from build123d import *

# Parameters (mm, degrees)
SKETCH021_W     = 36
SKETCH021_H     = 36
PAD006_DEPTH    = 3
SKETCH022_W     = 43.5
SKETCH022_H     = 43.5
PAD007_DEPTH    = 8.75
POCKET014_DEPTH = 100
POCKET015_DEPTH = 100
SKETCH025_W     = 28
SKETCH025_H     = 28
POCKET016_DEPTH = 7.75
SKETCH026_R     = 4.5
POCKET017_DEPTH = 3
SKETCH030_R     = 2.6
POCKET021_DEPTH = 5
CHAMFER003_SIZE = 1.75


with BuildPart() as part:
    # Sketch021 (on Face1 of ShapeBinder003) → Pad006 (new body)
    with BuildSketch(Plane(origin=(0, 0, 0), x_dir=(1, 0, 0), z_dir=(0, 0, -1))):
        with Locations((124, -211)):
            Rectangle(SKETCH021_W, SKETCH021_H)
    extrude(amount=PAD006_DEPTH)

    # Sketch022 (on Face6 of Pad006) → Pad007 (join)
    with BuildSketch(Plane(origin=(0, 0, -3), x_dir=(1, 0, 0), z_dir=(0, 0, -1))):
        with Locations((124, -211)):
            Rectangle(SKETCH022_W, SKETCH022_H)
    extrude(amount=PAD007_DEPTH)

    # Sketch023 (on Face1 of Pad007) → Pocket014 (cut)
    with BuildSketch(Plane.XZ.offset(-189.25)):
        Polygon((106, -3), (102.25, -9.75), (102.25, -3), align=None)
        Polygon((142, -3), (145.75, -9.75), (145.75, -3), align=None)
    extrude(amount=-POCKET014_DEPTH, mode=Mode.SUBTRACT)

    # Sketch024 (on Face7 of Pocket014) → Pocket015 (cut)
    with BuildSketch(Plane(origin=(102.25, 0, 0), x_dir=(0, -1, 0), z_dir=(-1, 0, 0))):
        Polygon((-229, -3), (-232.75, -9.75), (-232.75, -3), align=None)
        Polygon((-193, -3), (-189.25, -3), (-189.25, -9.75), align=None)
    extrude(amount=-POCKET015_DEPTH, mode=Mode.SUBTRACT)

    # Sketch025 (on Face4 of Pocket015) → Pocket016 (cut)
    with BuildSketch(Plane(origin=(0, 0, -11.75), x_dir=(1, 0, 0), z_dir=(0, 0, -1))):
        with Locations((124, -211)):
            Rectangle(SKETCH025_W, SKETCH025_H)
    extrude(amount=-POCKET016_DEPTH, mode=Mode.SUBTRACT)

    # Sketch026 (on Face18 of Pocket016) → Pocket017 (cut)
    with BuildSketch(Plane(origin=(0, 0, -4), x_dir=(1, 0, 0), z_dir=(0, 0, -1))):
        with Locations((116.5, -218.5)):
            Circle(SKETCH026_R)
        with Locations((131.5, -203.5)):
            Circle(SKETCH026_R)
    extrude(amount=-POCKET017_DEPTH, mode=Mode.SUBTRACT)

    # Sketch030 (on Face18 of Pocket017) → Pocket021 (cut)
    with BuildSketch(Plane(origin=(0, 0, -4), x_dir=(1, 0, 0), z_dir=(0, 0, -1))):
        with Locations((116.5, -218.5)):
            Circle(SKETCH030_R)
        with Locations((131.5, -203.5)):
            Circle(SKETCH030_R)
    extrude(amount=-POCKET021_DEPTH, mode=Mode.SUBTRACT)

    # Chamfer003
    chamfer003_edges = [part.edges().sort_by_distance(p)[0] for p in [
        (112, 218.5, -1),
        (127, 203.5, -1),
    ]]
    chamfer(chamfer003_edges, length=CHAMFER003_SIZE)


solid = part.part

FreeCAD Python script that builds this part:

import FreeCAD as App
import Part
import Sketcher
from FreeCAD import Vector
Q = App.Units.Quantity


def edges_at(feature, points):
    """Names of the edges that pass closest to the given points."""
    edges = feature.Shape.Edges
    near = lambda p: min(range(len(edges)), key=lambda i: edges[i].distToShape(Part.Vertex(*p))[0])
    return sorted({f"Edge{near(p) + 1}" for p in points})

doc = App.newDocument("Part")
body = doc.addObject("PartDesign::Body", "Body")

sketch1 = body.newObject("Sketcher::SketchObject", "Sketch")
sketch1.AttachmentSupport = (doc.getObject("XY_Plane"), [""])
sketch1.MapMode = "FlatFace"
sketch1.addGeometry(Part.LineSegment(Vector(106, 193, 0), Vector(106, 229, 0)), False)
sketch1.addGeometry(Part.LineSegment(Vector(106, 229, 0), Vector(142, 229, 0)), False)
sketch1.addGeometry(Part.LineSegment(Vector(142, 229, 0), Vector(142, 193, 0)), False)
sketch1.addGeometry(Part.LineSegment(Vector(142, 193, 0), Vector(106, 193, 0)), False)
sketch1.addConstraint(Sketcher.Constraint("Coincident", 0, 2, 1, 1))
sketch1.addConstraint(Sketcher.Constraint("Coincident", 1, 2, 2, 1))
sketch1.addConstraint(Sketcher.Constraint("Coincident", 2, 2, 3, 1))
sketch1.addConstraint(Sketcher.Constraint("Coincident", 3, 2, 0, 1))
sketch1.addConstraint(Sketcher.Constraint("Vertical", 0))
sketch1.addConstraint(Sketcher.Constraint("Horizontal", 1))
sketch1.addConstraint(Sketcher.Constraint("Vertical", 2))
sketch1.addConstraint(Sketcher.Constraint("Horizontal", 3))
sketch1.addConstraint(Sketcher.Constraint("Equal", 3, 0))
sketch1.addConstraint(Sketcher.Constraint("DistanceX", 1, 1, 1, 2, Q("36 mm")))
sketch1.addConstraint(Sketcher.Constraint("DistanceX", -1, 1, 0, 2, Q("106 mm")))
sketch1.addConstraint(Sketcher.Constraint("DistanceY", -1, 1, 0, 2, Q("229 mm")))
pad1 = body.newObject("PartDesign::Pad", "Pad")
pad1.Profile = sketch1
pad1.Length = 3
pad1.Reversed = True

sketch2 = body.newObject("Sketcher::SketchObject", "Sketch001")
sketch2.AttachmentSupport = (doc.getObject("XY_Plane"), [""])
sketch2.MapMode = "FlatFace"
sketch2.AttachmentOffset = App.Placement(Vector(0, 0, -3), App.Rotation())
sketch2.addGeometry(Part.LineSegment(Vector(102.25, 189.25, 0), Vector(102.25, 232.75, 0)), False)
sketch2.addGeometry(Part.LineSegment(Vector(102.25, 232.75, 0), Vector(145.75, 232.75, 0)), False)
sketch2.addGeometry(Part.LineSegment(Vector(145.75, 232.75, 0), Vector(145.75, 189.25, 0)), False)
sketch2.addGeometry(Part.LineSegment(Vector(145.75, 189.25, 0), Vector(102.25, 189.25, 0)), False)
sketch2.addConstraint(Sketcher.Constraint("Coincident", 0, 2, 1, 1))
sketch2.addConstraint(Sketcher.Constraint("Coincident", 1, 2, 2, 1))
sketch2.addConstraint(Sketcher.Constraint("Coincident", 2, 2, 3, 1))
sketch2.addConstraint(Sketcher.Constraint("Coincident", 3, 2, 0, 1))
sketch2.addConstraint(Sketcher.Constraint("Vertical", 0))
sketch2.addConstraint(Sketcher.Constraint("Horizontal", 1))
sketch2.addConstraint(Sketcher.Constraint("Vertical", 2))
sketch2.addConstraint(Sketcher.Constraint("Horizontal", 3))
sketch2.addConstraint(Sketcher.Constraint("Equal", 3, 0))
sketch2.addConstraint(Sketcher.Constraint("DistanceX", 1, 1, 1, 2, Q("43.5 mm")))
sketch2.addConstraint(Sketcher.Constraint("DistanceX", -1, 1, 0, 2, Q("102.25 mm")))
sketch2.addConstraint(Sketcher.Constraint("DistanceY", -1, 1, 0, 2, Q("232.75 mm")))
pad2 = body.newObject("PartDesign::Pad", "Pad001")
pad2.Profile = sketch2
pad2.Length = 8.75
pad2.Reversed = True

sketch3 = body.newObject("Sketcher::SketchObject", "Sketch002")
sketch3.AttachmentSupport = (doc.getObject("XZ_Plane"), [""])
sketch3.MapMode = "FlatFace"
sketch3.AttachmentOffset = App.Placement(Vector(0, 0, -189.25), App.Rotation())
sketch3.addGeometry(Part.LineSegment(Vector(102.25, -9.75, 0), Vector(106, -3, 0)), False)
sketch3.addGeometry(Part.LineSegment(Vector(106, -3, 0), Vector(102.25, -3, 0)), False)
sketch3.addGeometry(Part.LineSegment(Vector(102.25, -3, 0), Vector(102.25, -9.75, 0)), False)
sketch3.addGeometry(Part.LineSegment(Vector(142, -3, 0), Vector(145.75, -9.75, 0)), False)
sketch3.addGeometry(Part.LineSegment(Vector(145.75, -9.75, 0), Vector(145.75, -3, 0)), False)
sketch3.addGeometry(Part.LineSegment(Vector(145.75, -3, 0), Vector(142, -3, 0)), False)
sketch3.addConstraint(Sketcher.Constraint("Coincident", 0, 2, 1, 1))
sketch3.addConstraint(Sketcher.Constraint("Coincident", 1, 2, 2, 1))
sketch3.addConstraint(Sketcher.Constraint("Coincident", 2, 2, 0, 1))
sketch3.addConstraint(Sketcher.Constraint("Coincident", 3, 2, 4, 1))
sketch3.addConstraint(Sketcher.Constraint("Coincident", 4, 2, 5, 1))
sketch3.addConstraint(Sketcher.Constraint("Coincident", 5, 2, 3, 1))
sketch3.addConstraint(Sketcher.Constraint("Horizontal", 1))
sketch3.addConstraint(Sketcher.Constraint("Vertical", 2))
sketch3.addConstraint(Sketcher.Constraint("Vertical", 4))
sketch3.addConstraint(Sketcher.Constraint("Horizontal", 5))
sketch3.addConstraint(Sketcher.Constraint("Horizontal", 2, 2, 3, 2))
sketch3.addConstraint(Sketcher.Constraint("Horizontal", 1, 2, 4, 2))
sketch3.addConstraint(Sketcher.Constraint("Equal", 1, 5))
sketch3.addConstraint(Sketcher.Constraint("DistanceX", -1, 1, 0, 2, Q("106 mm")))
sketch3.addConstraint(Sketcher.Constraint("DistanceY", 0, 2, -1, 1, Q("3 mm")))
sketch3.addConstraint(Sketcher.Constraint("DistanceX", -1, 1, 5, 2, Q("142 mm")))
sketch3.addConstraint(Sketcher.Constraint("DistanceX", 1, 2, 1, 1, Q("3.75 mm")))
sketch3.addConstraint(Sketcher.Constraint("DistanceY", 2, 2, 2, 1, Q("6.75 mm")))
pocket1 = body.newObject("PartDesign::Pocket", "Pocket")
pocket1.Profile = sketch3
pocket1.Length = 100

sketch4 = body.newObject("Sketcher::SketchObject", "Sketch003")
sketch4.AttachmentSupport = (doc.getObject("YZ_Plane"), [""])
sketch4.MapMode = "FlatFace"
sketch4.AttachmentOffset = App.Placement(Vector(0, 0, 102.25), App.Rotation())
sketch4.addGeometry(Part.LineSegment(Vector(232.75, -9.75, 0), Vector(229, -3, 0)), False)
sketch4.addGeometry(Part.LineSegment(Vector(229, -3, 0), Vector(232.75, -3, 0)), False)
sketch4.addGeometry(Part.LineSegment(Vector(232.75, -3, 0), Vector(232.75, -9.75, 0)), False)
sketch4.addGeometry(Part.LineSegment(Vector(189.25, -3, 0), Vector(193, -3, 0)), False)
sketch4.addGeometry(Part.LineSegment(Vector(193, -3, 0), Vector(189.25, -9.75, 0)), False)
sketch4.addGeometry(Part.LineSegment(Vector(189.25, -9.75, 0), Vector(189.25, -3, 0)), False)
sketch4.addConstraint(Sketcher.Constraint("Coincident", 0, 2, 1, 1))
sketch4.addConstraint(Sketcher.Constraint("Coincident", 1, 2, 2, 1))
sketch4.addConstraint(Sketcher.Constraint("Coincident", 2, 2, 0, 1))
sketch4.addConstraint(Sketcher.Constraint("Coincident", 3, 2, 4, 1))
sketch4.addConstraint(Sketcher.Constraint("Coincident", 4, 2, 5, 1))
sketch4.addConstraint(Sketcher.Constraint("Coincident", 5, 2, 3, 1))
sketch4.addConstraint(Sketcher.Constraint("Horizontal", 1))
sketch4.addConstraint(Sketcher.Constraint("Vertical", 2))
sketch4.addConstraint(Sketcher.Constraint("Horizontal", 3))
sketch4.addConstraint(Sketcher.Constraint("Vertical", 5))
sketch4.addConstraint(Sketcher.Constraint("Horizontal", 1, 2, 3, 2))
sketch4.addConstraint(Sketcher.Constraint("Horizontal", 2, 2, 4, 2))
sketch4.addConstraint(Sketcher.Constraint("Equal", 1, 3))
sketch4.addConstraint(Sketcher.Constraint("DistanceX", -1, 1, 0, 2, Q("229 mm")))
sketch4.addConstraint(Sketcher.Constraint("DistanceY", 0, 2, -1, 1, Q("3 mm")))
sketch4.addConstraint(Sketcher.Constraint("DistanceX", -1, 1, 3, 2, Q("193 mm")))
sketch4.addConstraint(Sketcher.Constraint("DistanceX", 1, 1, 1, 2, Q("3.75 mm")))
sketch4.addConstraint(Sketcher.Constraint("DistanceY", 2, 2, 2, 1, Q("6.75 mm")))
pocket2 = body.newObject("PartDesign::Pocket", "Pocket001")
pocket2.Profile = sketch4
pocket2.Length = 100
pocket2.Reversed = True

sketch5 = body.newObject("Sketcher::SketchObject", "Sketch004")
sketch5.AttachmentSupport = (doc.getObject("XY_Plane"), [""])
sketch5.MapMode = "FlatFace"
sketch5.AttachmentOffset = App.Placement(Vector(0, 0, -11.75), App.Rotation())
sketch5.addGeometry(Part.LineSegment(Vector(110, 197, 0), Vector(110, 225, 0)), False)
sketch5.addGeometry(Part.LineSegment(Vector(110, 225, 0), Vector(138, 225, 0)), False)
sketch5.addGeometry(Part.LineSegment(Vector(138, 225, 0), Vector(138, 197, 0)), False)
sketch5.addGeometry(Part.LineSegment(Vector(138, 197, 0), Vector(110, 197, 0)), False)
sketch5.addConstraint(Sketcher.Constraint("Coincident", 0, 2, 1, 1))
sketch5.addConstraint(Sketcher.Constraint("Coincident", 1, 2, 2, 1))
sketch5.addConstraint(Sketcher.Constraint("Coincident", 2, 2, 3, 1))
sketch5.addConstraint(Sketcher.Constraint("Coincident", 3, 2, 0, 1))
sketch5.addConstraint(Sketcher.Constraint("Vertical", 0))
sketch5.addConstraint(Sketcher.Constraint("Horizontal", 1))
sketch5.addConstraint(Sketcher.Constraint("Vertical", 2))
sketch5.addConstraint(Sketcher.Constraint("Horizontal", 3))
sketch5.addConstraint(Sketcher.Constraint("Equal", 3, 0))
sketch5.addConstraint(Sketcher.Constraint("DistanceX", 1, 1, 1, 2, Q("28 mm")))
sketch5.addConstraint(Sketcher.Constraint("DistanceX", -1, 1, 0, 2, Q("110 mm")))
sketch5.addConstraint(Sketcher.Constraint("DistanceY", -1, 1, 0, 2, Q("225 mm")))
pocket3 = body.newObject("PartDesign::Pocket", "Pocket002")
pocket3.Profile = sketch5
pocket3.Length = 7.75
pocket3.Reversed = True

sketch6 = body.newObject("Sketcher::SketchObject", "Sketch005")
sketch6.AttachmentSupport = (doc.getObject("XY_Plane"), [""])
sketch6.MapMode = "FlatFace"
sketch6.AttachmentOffset = App.Placement(Vector(0, 0, -4), App.Rotation())
sketch6.addGeometry(Part.Circle(Vector(116.5, 218.5, 0), Vector(0, 0, 1), 4.5), False)
sketch6.addGeometry(Part.Circle(Vector(131.5, 203.5, 0), Vector(0, 0, 1), 4.5), False)
sketch6.addConstraint(Sketcher.Constraint("Equal", 0, 1))
sketch6.addConstraint(Sketcher.Constraint("Diameter", 0, Q("9 mm")))
sketch6.addConstraint(Sketcher.Constraint("DistanceX", 0, 3, 1, 3, Q("15 mm")))
sketch6.addConstraint(Sketcher.Constraint("DistanceY", 1, 3, 0, 3, Q("15 mm")))
sketch6.addConstraint(Sketcher.Constraint("DistanceX", -1, 1, 0, 3, Q("116.5 mm")))
sketch6.addConstraint(Sketcher.Constraint("DistanceY", -1, 1, 0, 3, Q("218.5 mm")))
pocket4 = body.newObject("PartDesign::Pocket", "Pocket003")
pocket4.Profile = sketch6
pocket4.Length = 3
pocket4.Reversed = True

sketch7 = body.newObject("Sketcher::SketchObject", "Sketch006")
sketch7.AttachmentSupport = (doc.getObject("XY_Plane"), [""])
sketch7.MapMode = "FlatFace"
sketch7.AttachmentOffset = App.Placement(Vector(0, 0, -4), App.Rotation())
sketch7.addGeometry(Part.Circle(Vector(116.5, 218.5, 0), Vector(0, 0, 1), 2.6), False)
sketch7.addGeometry(Part.Circle(Vector(131.5, 203.5, 0), Vector(0, 0, 1), 2.6), False)
sketch7.addConstraint(Sketcher.Constraint("Equal", 0, 1))
sketch7.addConstraint(Sketcher.Constraint("Diameter", 0, Q("5.2 mm")))
sketch7.addConstraint(Sketcher.Constraint("DistanceX", 0, 3, 1, 3, Q("15 mm")))
sketch7.addConstraint(Sketcher.Constraint("DistanceY", 1, 3, 0, 3, Q("15 mm")))
sketch7.addConstraint(Sketcher.Constraint("DistanceX", -1, 1, 0, 3, Q("116.5 mm")))
sketch7.addConstraint(Sketcher.Constraint("DistanceY", -1, 1, 0, 3, Q("218.5 mm")))
pocket5 = body.newObject("PartDesign::Pocket", "Pocket004")
pocket5.Profile = sketch7
pocket5.Length = 5
pocket5.Reversed = True
doc.recompute()

chamfer = body.newObject("PartDesign::Chamfer", "Chamfer")
chamfer.Base = (pocket5, edges_at(pocket5, [(112, 218.5, -1), (127, 203.5, -1)]))
chamfer.Size = 1.75

doc.recompute()
